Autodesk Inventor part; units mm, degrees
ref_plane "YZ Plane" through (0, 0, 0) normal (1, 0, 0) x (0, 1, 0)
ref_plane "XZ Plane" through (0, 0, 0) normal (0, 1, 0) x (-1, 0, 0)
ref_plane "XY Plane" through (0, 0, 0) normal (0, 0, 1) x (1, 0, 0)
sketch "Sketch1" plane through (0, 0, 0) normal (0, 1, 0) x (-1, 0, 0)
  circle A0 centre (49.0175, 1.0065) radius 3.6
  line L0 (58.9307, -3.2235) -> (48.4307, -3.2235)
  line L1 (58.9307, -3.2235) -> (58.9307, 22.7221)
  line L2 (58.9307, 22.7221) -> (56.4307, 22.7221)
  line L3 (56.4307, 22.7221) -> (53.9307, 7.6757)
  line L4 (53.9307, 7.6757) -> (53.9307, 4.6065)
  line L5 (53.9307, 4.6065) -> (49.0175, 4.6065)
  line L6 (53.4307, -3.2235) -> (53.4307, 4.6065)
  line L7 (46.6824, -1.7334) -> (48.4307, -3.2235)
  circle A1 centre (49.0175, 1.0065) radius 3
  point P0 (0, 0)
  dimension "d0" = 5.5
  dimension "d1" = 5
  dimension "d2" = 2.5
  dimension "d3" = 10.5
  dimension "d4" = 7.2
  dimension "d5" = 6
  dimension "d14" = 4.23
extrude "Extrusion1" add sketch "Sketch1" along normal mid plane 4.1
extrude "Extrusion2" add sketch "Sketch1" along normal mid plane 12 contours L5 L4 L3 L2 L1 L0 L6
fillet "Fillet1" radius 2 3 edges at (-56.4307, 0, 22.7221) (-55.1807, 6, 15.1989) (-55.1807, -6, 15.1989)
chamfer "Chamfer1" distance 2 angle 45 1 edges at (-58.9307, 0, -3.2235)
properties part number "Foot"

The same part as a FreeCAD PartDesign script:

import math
import FreeCAD as App
import Part
import Sketcher
Q = App.Units.Quantity


def edges_at(feature, points):
    """Names of the edges that pass closest to the given points."""
    edges = feature.Shape.Edges
    near = lambda p: min(range(len(edges)), key=lambda i: edges[i].distToShape(Part.Vertex(*p))[0])
    return sorted({f"Edge{near(p) + 1}" for p in points})

doc = App.newDocument("Part")
body = doc.addObject("PartDesign::Body", "Body")

sketch1 = doc.addObject("Sketcher::SketchObject", "Sketch")
body.addObject(sketch1)
sketch1.AttachmentSupport = (doc.XZ_Plane, [""])
sketch1.MapMode = "FlatFace"
sketch1.addGeometry([
    Part.ArcOfCircle(Part.Circle(App.Vector(-49, 1, 0), App.Vector(0, 0, 1), 3.6), math.radians(-50), math.radians(90)),
    Part.LineSegment(App.Vector(-46.7, -1.7, 0), App.Vector(-48.4, -3.2, 0)),
    Part.LineSegment(App.Vector(-48.4, -3.2, 0), App.Vector(-58.9, -3.2, 0)),
    Part.LineSegment(App.Vector(-58.9, -3.2, 0), App.Vector(-58.9, 22.7, 0)),
    Part.LineSegment(App.Vector(-58.9, 22.7, 0), App.Vector(-56.4, 22.7, 0)),
    Part.LineSegment(App.Vector(-56.4, 22.7, 0), App.Vector(-53.9, 7.7, 0)),
    Part.LineSegment(App.Vector(-53.9, 7.7, 0), App.Vector(-53.9, 4.6, 0)),
    Part.LineSegment(App.Vector(-53.9, 4.6, 0), App.Vector(-49, 4.6, 0)),
    Part.Circle(App.Vector(-49, 1, 0), App.Vector(0, 0, 1), 3),
], False)
sketch1.addConstraint([
    Sketcher.Constraint("Tangent", 0, 1, 1, 1),
    Sketcher.Constraint("Coincident", 1, 2, 2, 1),
    Sketcher.Constraint("Coincident", 2, 2, 3, 1),
    Sketcher.Constraint("Coincident", 3, 2, 4, 1),
    Sketcher.Constraint("Coincident", 4, 2, 5, 1),
    Sketcher.Constraint("Coincident", 5, 2, 6, 1),
    Sketcher.Constraint("Coincident", 6, 2, 7, 1),
    Sketcher.Constraint("Tangent", 7, 2, 0, 2),
    Sketcher.Constraint("Horizontal", 2),
    Sketcher.Constraint("Vertical", 3),
    Sketcher.Constraint("Horizontal", 4),
    Sketcher.Constraint("Vertical", 6),
    Sketcher.Constraint("Horizontal", 7),
    Sketcher.Constraint("Coincident", 8, 3, 0, 3),
    Sketcher.Constraint("Diameter", 8, Q("6 mm")),
    Sketcher.Constraint("Radius", 0, Q("3.6 mm")),
    Sketcher.Constraint("DistanceX", 2, 2, 2, 1, Q("10.5 mm")),
    Sketcher.Constraint("DistanceX", 4, 1, 4, 2, Q("2.5 mm")),
    Sketcher.Constraint("DistanceX", 2, 2, 5, 2, Q("5 mm")),
    Sketcher.Constraint("DistanceY", 1, 2, 0, 3, Q("4.23 mm")),
    Sketcher.Constraint("DistanceY", 0, 1, 0, 3, Q("2.74 mm")),
    Sketcher.Constraint("DistanceY", 3, 1, 3, 2, Q("25.9456 mm")),
    Sketcher.Constraint("DistanceY", 6, 2, 6, 1, Q("3.0692 mm")),
    Sketcher.Constraint("DistanceY", -1, 1, 3, 2, Q("22.722 mm")),
    Sketcher.Constraint("DistanceX", 0, 3, -1, 1, Q("49.0175 mm")),
])
pad1 = doc.addObject("PartDesign::Pad", "Pad")
body.addObject(pad1)
pad1.Profile = sketch1
pad1.Length = 4.1
pad1.Midplane = True

sketch2 = doc.addObject("Sketcher::SketchObject", "Sketch001")
body.addObject(sketch2)
sketch2.AttachmentSupport = (doc.XZ_Plane, [""])
sketch2.MapMode = "FlatFace"
sketch2.addGeometry([
    Part.LineSegment(App.Vector(-53.9, 4.6, 0), App.Vector(-53.4, 4.6, 0)),
    Part.LineSegment(App.Vector(-53.4, 4.6, 0), App.Vector(-53.4, -3.2, 0)),
    Part.LineSegment(App.Vector(-53.4, -3.2, 0), App.Vector(-58.9, -3.2, 0)),
    Part.LineSegment(App.Vector(-58.9, -3.2, 0), App.Vector(-58.9, 22.7, 0)),
    Part.LineSegment(App.Vector(-58.9, 22.7, 0), App.Vector(-56.4, 22.7, 0)),
    Part.LineSegment(App.Vector(-56.4, 22.7, 0), App.Vector(-53.9, 7.7, 0)),
    Part.LineSegment(App.Vector(-53.9, 7.7, 0), App.Vector(-53.9, 4.6, 0)),
], False)
sketch2.addConstraint([
    Sketcher.Constraint("Coincident", 0, 2, 1, 1),
    Sketcher.Constraint("Coincident", 1, 2, 2, 1),
    Sketcher.Constraint("Coincident", 2, 2, 3, 1),
    Sketcher.Constraint("Coincident", 3, 2, 4, 1),
    Sketcher.Constraint("Coincident", 4, 2, 5, 1),
    Sketcher.Constraint("Coincident", 5, 2, 6, 1),
    Sketcher.Constraint("Coincident", 6, 2, 0, 1),
    Sketcher.Constraint("Horizontal", 0),
    Sketcher.Constraint("Vertical", 1),
    Sketcher.Constraint("Horizontal", 2),
    Sketcher.Constraint("Vertical", 3),
    Sketcher.Constraint("Horizontal", 4),
    Sketcher.Constraint("Vertical", 6),
    Sketcher.Constraint("DistanceX", 2, 2, 2, 1, Q("5.5 mm")),
    Sketcher.Constraint("DistanceX", 4, 1, 4, 2, Q("2.5 mm")),
    Sketcher.Constraint("DistanceX", 2, 2, 5, 2, Q("5 mm")),
    Sketcher.Constraint("DistanceY", 1, 2, 1, 1, Q("7.83 mm")),
    Sketcher.Constraint("DistanceY", 3, 1, 3, 2, Q("25.9456 mm")),
    Sketcher.Constraint("DistanceY", 6, 2, 6, 1, Q("3.0692 mm")),
    Sketcher.Constraint("DistanceY", -1, 1, 3, 2, Q("22.722 mm")),
    Sketcher.Constraint("DistanceX", 0, 2, -1, 1, Q("53.4307 mm")),
])
pad2 = doc.addObject("PartDesign::Pad", "Pad001")
body.addObject(pad2)
pad2.Profile = sketch2
pad2.Length = 12
pad2.Midplane = True
doc.recompute()

fillet = doc.addObject("PartDesign::Fillet", "Fillet")
body.addObject(fillet)
fillet.Base = (pad2, edges_at(pad2, [(-56.431, 0, 22.722), (-55.181, 6, 15.199), (-55.181, -6, 15.199)]))
fillet.Radius = 2
doc.recompute()

chamfer = doc.addObject("PartDesign::Chamfer", "Chamfer")
body.addObject(chamfer)
chamfer.Base = (fillet, edges_at(fillet, [(-58.931, 0, -3.224)]))
chamfer.Size = 2

doc.recompute()
